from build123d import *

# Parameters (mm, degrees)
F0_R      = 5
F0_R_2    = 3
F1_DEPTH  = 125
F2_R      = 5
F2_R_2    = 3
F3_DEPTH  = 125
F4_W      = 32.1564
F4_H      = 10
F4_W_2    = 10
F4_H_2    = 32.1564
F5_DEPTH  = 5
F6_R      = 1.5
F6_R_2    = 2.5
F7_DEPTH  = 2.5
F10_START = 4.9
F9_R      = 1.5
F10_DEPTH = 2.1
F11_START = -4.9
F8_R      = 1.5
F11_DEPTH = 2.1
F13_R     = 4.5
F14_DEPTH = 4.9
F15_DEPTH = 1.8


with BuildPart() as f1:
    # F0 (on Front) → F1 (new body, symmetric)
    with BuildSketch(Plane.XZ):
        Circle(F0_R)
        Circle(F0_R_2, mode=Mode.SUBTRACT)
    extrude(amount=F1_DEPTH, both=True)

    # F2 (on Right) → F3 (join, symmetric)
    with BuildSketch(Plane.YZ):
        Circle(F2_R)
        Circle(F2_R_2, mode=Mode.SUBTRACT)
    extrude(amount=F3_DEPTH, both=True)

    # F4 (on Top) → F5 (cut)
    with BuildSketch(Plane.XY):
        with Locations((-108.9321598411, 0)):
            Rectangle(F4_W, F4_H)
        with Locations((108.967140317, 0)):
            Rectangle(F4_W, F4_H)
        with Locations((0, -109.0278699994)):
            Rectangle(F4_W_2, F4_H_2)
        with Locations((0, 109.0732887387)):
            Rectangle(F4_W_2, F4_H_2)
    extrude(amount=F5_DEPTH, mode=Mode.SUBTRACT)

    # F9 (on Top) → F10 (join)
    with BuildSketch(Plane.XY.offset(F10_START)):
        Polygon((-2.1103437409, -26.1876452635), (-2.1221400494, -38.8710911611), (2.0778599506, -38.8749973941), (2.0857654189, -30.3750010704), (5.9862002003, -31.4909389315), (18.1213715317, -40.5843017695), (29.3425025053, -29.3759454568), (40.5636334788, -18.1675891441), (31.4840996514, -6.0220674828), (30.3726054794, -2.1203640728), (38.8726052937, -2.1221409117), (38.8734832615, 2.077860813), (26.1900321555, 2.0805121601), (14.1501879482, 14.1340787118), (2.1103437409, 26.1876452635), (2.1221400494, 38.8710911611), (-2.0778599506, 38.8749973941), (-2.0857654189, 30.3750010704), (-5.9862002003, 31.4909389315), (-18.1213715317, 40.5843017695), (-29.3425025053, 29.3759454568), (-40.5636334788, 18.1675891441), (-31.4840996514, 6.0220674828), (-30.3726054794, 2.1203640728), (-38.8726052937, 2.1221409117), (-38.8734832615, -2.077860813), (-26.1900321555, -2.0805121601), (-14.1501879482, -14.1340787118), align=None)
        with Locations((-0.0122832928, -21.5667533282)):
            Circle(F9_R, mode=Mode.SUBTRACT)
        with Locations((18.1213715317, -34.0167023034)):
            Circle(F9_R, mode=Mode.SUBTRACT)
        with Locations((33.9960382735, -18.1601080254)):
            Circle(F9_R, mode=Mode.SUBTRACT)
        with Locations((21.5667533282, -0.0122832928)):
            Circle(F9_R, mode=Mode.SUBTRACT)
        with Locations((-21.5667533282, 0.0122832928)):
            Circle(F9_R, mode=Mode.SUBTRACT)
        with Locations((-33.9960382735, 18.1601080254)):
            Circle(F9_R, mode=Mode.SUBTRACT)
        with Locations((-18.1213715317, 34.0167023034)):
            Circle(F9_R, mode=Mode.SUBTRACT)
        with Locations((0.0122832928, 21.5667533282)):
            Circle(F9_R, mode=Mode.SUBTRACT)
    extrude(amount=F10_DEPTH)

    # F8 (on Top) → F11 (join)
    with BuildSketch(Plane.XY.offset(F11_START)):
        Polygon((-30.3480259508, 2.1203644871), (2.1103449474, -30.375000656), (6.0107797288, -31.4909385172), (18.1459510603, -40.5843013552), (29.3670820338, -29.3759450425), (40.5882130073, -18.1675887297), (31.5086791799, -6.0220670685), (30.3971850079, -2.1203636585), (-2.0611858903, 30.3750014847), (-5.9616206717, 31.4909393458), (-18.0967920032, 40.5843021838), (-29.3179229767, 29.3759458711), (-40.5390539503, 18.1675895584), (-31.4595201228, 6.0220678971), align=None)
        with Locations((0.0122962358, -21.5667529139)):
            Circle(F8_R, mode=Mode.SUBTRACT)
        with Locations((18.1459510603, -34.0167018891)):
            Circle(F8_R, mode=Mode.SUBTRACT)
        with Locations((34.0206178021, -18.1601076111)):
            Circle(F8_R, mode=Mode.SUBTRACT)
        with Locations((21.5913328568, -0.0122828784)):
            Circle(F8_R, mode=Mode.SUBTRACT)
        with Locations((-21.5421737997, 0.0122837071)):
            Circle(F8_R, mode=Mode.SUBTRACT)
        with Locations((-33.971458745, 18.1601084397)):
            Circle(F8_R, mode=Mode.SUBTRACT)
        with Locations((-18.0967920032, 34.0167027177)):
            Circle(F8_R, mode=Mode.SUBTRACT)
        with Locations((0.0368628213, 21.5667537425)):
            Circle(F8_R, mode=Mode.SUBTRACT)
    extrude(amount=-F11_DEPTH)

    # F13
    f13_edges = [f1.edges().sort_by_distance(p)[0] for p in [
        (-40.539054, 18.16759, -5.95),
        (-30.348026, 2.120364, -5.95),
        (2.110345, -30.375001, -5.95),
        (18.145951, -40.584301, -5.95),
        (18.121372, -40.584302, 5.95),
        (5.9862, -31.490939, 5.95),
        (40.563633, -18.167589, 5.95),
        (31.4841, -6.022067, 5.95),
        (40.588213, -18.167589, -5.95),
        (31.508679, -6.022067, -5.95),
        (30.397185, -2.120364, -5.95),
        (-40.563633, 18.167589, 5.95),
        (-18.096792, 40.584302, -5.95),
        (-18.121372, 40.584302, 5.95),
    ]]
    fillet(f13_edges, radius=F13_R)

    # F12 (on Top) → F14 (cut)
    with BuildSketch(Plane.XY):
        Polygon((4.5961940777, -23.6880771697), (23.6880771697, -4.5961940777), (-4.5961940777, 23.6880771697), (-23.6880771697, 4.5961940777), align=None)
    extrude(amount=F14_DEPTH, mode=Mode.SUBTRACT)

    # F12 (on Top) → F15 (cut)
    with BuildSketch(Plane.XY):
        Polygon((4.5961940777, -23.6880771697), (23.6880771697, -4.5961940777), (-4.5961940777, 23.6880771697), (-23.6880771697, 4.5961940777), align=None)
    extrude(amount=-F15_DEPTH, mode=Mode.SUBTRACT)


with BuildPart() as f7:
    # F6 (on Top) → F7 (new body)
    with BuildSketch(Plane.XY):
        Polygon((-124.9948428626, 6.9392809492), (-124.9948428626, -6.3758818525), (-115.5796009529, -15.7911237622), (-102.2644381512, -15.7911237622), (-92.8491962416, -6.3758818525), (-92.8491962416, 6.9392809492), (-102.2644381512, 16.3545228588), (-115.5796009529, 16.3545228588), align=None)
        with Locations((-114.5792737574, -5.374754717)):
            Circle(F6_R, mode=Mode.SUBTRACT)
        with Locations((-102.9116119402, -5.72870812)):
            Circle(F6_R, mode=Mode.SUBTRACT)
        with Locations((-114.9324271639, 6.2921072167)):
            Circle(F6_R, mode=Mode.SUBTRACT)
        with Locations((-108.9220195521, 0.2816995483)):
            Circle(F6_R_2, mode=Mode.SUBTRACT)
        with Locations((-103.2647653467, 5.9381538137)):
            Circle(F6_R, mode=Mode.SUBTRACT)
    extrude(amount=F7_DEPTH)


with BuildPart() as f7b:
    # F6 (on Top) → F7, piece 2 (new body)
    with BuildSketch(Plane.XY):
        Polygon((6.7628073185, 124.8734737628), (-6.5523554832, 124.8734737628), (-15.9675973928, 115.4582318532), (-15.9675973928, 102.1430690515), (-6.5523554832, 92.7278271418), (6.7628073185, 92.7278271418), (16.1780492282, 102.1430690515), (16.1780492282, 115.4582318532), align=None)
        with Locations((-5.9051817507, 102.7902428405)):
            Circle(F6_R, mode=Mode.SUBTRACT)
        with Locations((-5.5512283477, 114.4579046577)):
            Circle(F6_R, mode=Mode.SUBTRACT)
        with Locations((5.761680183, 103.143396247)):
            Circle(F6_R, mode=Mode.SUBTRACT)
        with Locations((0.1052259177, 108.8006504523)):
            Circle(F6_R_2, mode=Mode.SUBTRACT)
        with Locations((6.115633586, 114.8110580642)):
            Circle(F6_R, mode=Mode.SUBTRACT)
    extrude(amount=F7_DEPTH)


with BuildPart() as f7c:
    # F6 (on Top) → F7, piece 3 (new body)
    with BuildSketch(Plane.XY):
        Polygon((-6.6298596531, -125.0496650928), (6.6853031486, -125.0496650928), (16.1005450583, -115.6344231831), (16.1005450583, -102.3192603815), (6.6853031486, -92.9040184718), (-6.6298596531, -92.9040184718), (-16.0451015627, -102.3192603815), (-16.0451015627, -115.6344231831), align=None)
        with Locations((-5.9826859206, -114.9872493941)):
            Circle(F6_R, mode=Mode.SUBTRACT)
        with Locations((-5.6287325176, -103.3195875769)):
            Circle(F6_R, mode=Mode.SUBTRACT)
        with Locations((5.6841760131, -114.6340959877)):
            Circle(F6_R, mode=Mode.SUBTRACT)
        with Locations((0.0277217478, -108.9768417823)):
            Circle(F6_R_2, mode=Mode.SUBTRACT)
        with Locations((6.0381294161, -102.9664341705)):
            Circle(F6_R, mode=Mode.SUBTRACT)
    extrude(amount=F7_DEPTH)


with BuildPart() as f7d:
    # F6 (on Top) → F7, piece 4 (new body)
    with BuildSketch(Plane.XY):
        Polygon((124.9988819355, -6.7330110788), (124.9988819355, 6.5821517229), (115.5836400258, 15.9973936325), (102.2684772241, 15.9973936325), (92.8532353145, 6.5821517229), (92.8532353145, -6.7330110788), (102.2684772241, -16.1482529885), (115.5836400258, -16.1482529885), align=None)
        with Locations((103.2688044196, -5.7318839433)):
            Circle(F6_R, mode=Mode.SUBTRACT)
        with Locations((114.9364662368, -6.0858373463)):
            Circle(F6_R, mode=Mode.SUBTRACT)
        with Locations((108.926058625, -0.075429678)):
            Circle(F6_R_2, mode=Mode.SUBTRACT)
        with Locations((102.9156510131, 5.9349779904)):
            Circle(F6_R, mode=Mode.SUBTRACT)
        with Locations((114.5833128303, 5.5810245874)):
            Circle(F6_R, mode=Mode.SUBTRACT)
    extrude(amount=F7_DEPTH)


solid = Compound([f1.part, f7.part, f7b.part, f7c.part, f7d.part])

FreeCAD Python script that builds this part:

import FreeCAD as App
import Part
import Sketcher
Q = App.Units.Quantity


def edges_at(feature, points):
    """Names of the edges that pass closest to the given points."""
    edges = feature.Shape.Edges
    near = lambda p: min(range(len(edges)), key=lambda i: edges[i].distToShape(Part.Vertex(*p))[0])
    return sorted({f"Edge{near(p) + 1}" for p in points})


def add_polygon(sketch, points):
    """Adds a closed chain of lines whose ends are joined by coincident constraints."""
    first, n = sketch.GeometryCount, len(points)
    for a, b in zip(points, points[1:] + points[:1]):
        sketch.addGeometry(Part.LineSegment(App.Vector(*a, 0), App.Vector(*b, 0)), False)
    for i in range(n):
        sketch.addConstraint(Sketcher.Constraint("Coincident", first + i, 2, first + (i + 1) % n, 1))

doc = App.newDocument("Part")
body = doc.addObject("PartDesign::Body", "Body")

sketch1 = body.newObject("Sketcher::SketchObject", "Sketch")
sketch1.AttachmentSupport = (doc.getObject("XZ_Plane"), [""])
sketch1.MapMode = "FlatFace"
sketch1.addGeometry([
    Part.Circle(App.Vector(0, 0, 0), App.Vector(0, 0, 1), 5),
    Part.Circle(App.Vector(0, 0, 0), App.Vector(0, 0, 1), 3),
], False)
sketch1.addConstraint([
    Sketcher.Constraint("Coincident", 0, 3, -1, 1),
    Sketcher.Constraint("Coincident", 1, 3, -1, 1),
    Sketcher.Constraint("Diameter", 0, 10.0),
    Sketcher.Constraint("Diameter", 1, 6.0),
])
pad1 = body.newObject("PartDesign::Pad", "Pad")
pad1.Profile = sketch1
pad1.Length = 250
pad1.Midplane = True

sketch2 = body.newObject("Sketcher::SketchObject", "Sketch001")
sketch2.AttachmentSupport = (doc.getObject("YZ_Plane"), [""])
sketch2.MapMode = "FlatFace"
sketch2.addGeometry([
    Part.Circle(App.Vector(0, 0, 0), App.Vector(0, 0, 1), 5),
    Part.Circle(App.Vector(0, 0, 0), App.Vector(0, 0, 1), 3),
], False)
sketch2.addConstraint([
    Sketcher.Constraint("Coincident", 0, 3, -1, 1),
    Sketcher.Constraint("Coincident", 1, 3, -1, 1),
    Sketcher.Constraint("Diameter", 0, 10.0),
    Sketcher.Constraint("Diameter", 1, 6.0),
])
pad2 = body.newObject("PartDesign::Pad", "Pad001")
pad2.Profile = sketch2
pad2.Length = 250
pad2.Midplane = True

sketch3 = body.newObject("Sketcher::SketchObject", "Sketch002")
sketch3.AttachmentSupport = (doc.getObject("XY_Plane"), [""])
sketch3.MapMode = "FlatFace"
add_polygon(sketch3, [(-125, 5), (-125, -5), (-93, -5), (-93, 5)])
add_polygon(sketch3, [(93, 5), (93, -5), (125, -5), (125, 5)])
add_polygon(sketch3, [(-5, -93), (-5, -125), (5, -125), (5, -93)])
add_polygon(sketch3, [(-5, 125), (-5, 93), (5, 93), (5, 125)])
sketch3.addConstraint([
    Sketcher.Constraint("Vertical", 0),
    Sketcher.Constraint("Horizontal", 1),
    Sketcher.Constraint("Vertical", 2),
    Sketcher.Constraint("Horizontal", 3),
    Sketcher.Constraint("Vertical", 4),
    Sketcher.Constraint("Horizontal", 5),
    Sketcher.Constraint("Vertical", 6),
    Sketcher.Constraint("Horizontal", 7),
    Sketcher.Constraint("Vertical", 8),
    Sketcher.Constraint("Horizontal", 9),
    Sketcher.Constraint("Vertical", 10),
    Sketcher.Constraint("Horizontal", 11),
    Sketcher.Constraint("Vertical", 12),
    Sketcher.Constraint("Horizontal", 13),
    Sketcher.Constraint("Vertical", 14),
    Sketcher.Constraint("Horizontal", 15),
    Sketcher.Constraint("Horizontal", 1, 2, 4, 2),
    Sketcher.Constraint("Horizontal", 3, 2, 6, 2),
    Sketcher.Constraint("Vertical", 11, 2, 12, 2),
    Sketcher.Constraint("Vertical", 10, 2, 13, 2),
    Sketcher.Constraint("Equal", 3, 5),
    Sketcher.Constraint("Equal", 15, 0),
    Sketcher.Constraint("Equal", 7, 8),
    Sketcher.Constraint("Equal", 10, 12),
    Sketcher.Constraint("DistanceX", 9, 1, 9, 2, 10.0),
    Sketcher.Constraint("DistanceY", 0, 2, -1, 1, 5.0),
    Sketcher.Constraint("DistanceX", 8, 2, -1, 1, 5.0),
    Sketcher.Constraint("DistanceX", 1, 1, 1, 2, 32.1564),
    Sketcher.Constraint("DistanceX", 1, 2, 4, 2, 185.7429),
    Sketcher.Constraint("DistanceX", 0, 2, -1, 1, 125.01036),
    Sketcher.Constraint("DistanceY", 8, 2, -1, 1, 125.10607),
    Sketcher.Constraint("DistanceY", -1, 1, 12, 2, 92.995089),
])
pocket1 = body.newObject("PartDesign::Pocket", "Pocket")
pocket1.Profile = sketch3
pocket1.Length = 5
pocket1.Reversed = True

sketch4 = body.newObject("Sketcher::SketchObject", "Sketch003")
sketch4.AttachmentSupport = (doc.getObject("XY_Plane"), [""])
sketch4.MapMode = "FlatFace"
sketch4.AttachmentOffset = App.Placement(App.Vector(0, 0, 4.9), App.Rotation())
add_polygon(sketch4, [(-2.1, -26.2), (-2.1, -38.9), (2.1, -38.9), (2.1, -30.4), (6, -31.5), (18.1, -40.6), (29.3, -29.4), (40.6, -18.2), (31.5, -6), (30.4, -2.1), (38.9, -2.1), (38.9, 2.1), (26.2, 2.1), (2.1, 26.2), (2.1, 38.9), (-2.1, 38.9), (-2.1, 30.4), (-6, 31.5), (-18.1, 40.6), (-29.3, 29.4), (-40.6, 18.2), (-31.5, 6), (-30.4, 2.1), (-38.9, 2.1), (-38.9, -2.1), (-26.2, -2.1)])
sketch4.addGeometry(Part.Circle(App.Vector(0, -21.6, 0), App.Vector(0, 0, 1), 1.5), False)
sketch4.addGeometry(Part.Circle(App.Vector(18.1, -34, 0), App.Vector(0, 0, 1), 1.5), False)
sketch4.addGeometry(Part.Circle(App.Vector(34, -18.2, 0), App.Vector(0, 0, 1), 1.5), False)
sketch4.addGeometry(Part.Circle(App.Vector(21.6, 0, 0), App.Vector(0, 0, 1), 1.5), False)
sketch4.addGeometry(Part.Circle(App.Vector(-21.6, 0, 0), App.Vector(0, 0, 1), 1.5), False)
sketch4.addGeometry(Part.Circle(App.Vector(-34, 18.2, 0), App.Vector(0, 0, 1), 1.5), False)
sketch4.addGeometry(Part.Circle(App.Vector(-18.1, 34, 0), App.Vector(0, 0, 1), 1.5), False)
sketch4.addGeometry(Part.Circle(App.Vector(0, 21.6, 0), App.Vector(0, 0, 1), 1.5), False)
sketch4.addConstraint([
    Sketcher.Constraint("Equal", 26, 27),
    Sketcher.Constraint("Equal", 27, 28),
    Sketcher.Constraint("Equal", 28, 29),
    Sketcher.Constraint("Equal", 29, 30),
    Sketcher.Constraint("Equal", 30, 31),
    Sketcher.Constraint("Equal", 31, 32),
    Sketcher.Constraint("Equal", 32, 33),
    Sketcher.Constraint("Symmetric", 29, 3, 30, 3, -1, 1),
    Sketcher.Constraint("Symmetric", 28, 3, 31, 3, -1, 1),
    Sketcher.Constraint("Symmetric", 27, 3, 32, 3, -1, 1),
    Sketcher.Constraint("Symmetric", 26, 3, 33, 3, -1, 1),
    Sketcher.Constraint("Symmetric", 0, 2, 13, 2, -1, 1),
    Sketcher.Constraint("Symmetric", 1, 2, 14, 2, -1, 1),
    Sketcher.Constraint("Symmetric", 2, 2, 15, 2, -1, 1),
    Sketcher.Constraint("Symmetric", 3, 2, 16, 2, -1, 1),
    Sketcher.Constraint("Symmetric", 4, 2, 17, 2, -1, 1),
    Sketcher.Constraint("Symmetric", 5, 2, 18, 2, -1, 1),
    Sketcher.Constraint("Symmetric", 6, 2, 19, 2, -1, 1),
    Sketcher.Constraint("Symmetric", 7, 2, 20, 2, -1, 1),
    Sketcher.Constraint("Symmetric", 8, 2, 21, 2, -1, 1),
    Sketcher.Constraint("Symmetric", 9, 2, 22, 2, -1, 1),
    Sketcher.Constraint("Symmetric", 10, 2, 23, 2, -1, 1),
    Sketcher.Constraint("Symmetric", 11, 2, 24, 2, -1, 1),
    Sketcher.Constraint("Symmetric", 12, 2, 25, 2, -1, 1),
    Sketcher.Constraint("Perpendicular", 0, 1),
    Sketcher.Constraint("Perpendicular", 1, 2),
    Sketcher.Constraint("Parallel", 5, 6),
    Sketcher.Constraint("Perpendicular", 9, 10),
    Sketcher.Constraint("Perpendicular", 10, 11),
    Sketcher.Constraint("Perpendicular", 6, 12),
    Sketcher.Constraint("Vertical", 27, 3, 4, 2),
    Sketcher.Constraint("Equal", 5, 6),
    Sketcher.Constraint("Equal", 4, 7),
    Sketcher.Constraint("Equal", 3, 8),
    Sketcher.Constraint("Equal", 2, 9),
    Sketcher.Constraint("Equal", 1, 10),
    Sketcher.Constraint("Equal", 0, 11),
    Sketcher.Constraint("Diameter", 26, 3.0),
    Sketcher.Constraint("Distance", 1, 4.200002),
    Sketcher.Constraint("Distance", 2, 8.5),
    Sketcher.Constraint("DistanceY", 2, 2, -1, 1, 30.375001),
    Sketcher.Constraint("DistanceX", -1, 1, 3, 2, 5.9862),
    Sketcher.Constraint("DistanceY", 4, 2, -1, 1, 40.584302),
    Sketcher.Constraint("DistanceX", -1, 1, 7, 2, 31.4841),
    Sketcher.Constraint("DistanceY", 27, 3, 2, 2, 3.641701),
    Sketcher.Constraint("Distance", 0, 12.683451),
    Sketcher.Constraint("DistanceX", -1, 1, 27, 3, 18.121372),
    Sketcher.Constraint("DistanceX", -1, 1, 28, 3, 33.996038),
    Sketcher.Constraint("DistanceY", 28, 3, -1, 1, 18.160108),
    Sketcher.Constraint("DistanceX", 0, 2, -1, 1, 2.12214),
    Sketcher.Constraint("DistanceY", 0, 2, -1, 1, 38.871091),
    Sketcher.Constraint("DistanceY", 3, 2, -1, 1, 31.490939),
    Sketcher.Constraint("DistanceY", 6, 2, -1, 1, 18.167589),
    Sketcher.Constraint("DistanceY", 9, 2, -1, 1, 2.122141),
    Sketcher.Constraint("DistanceY", 27, 3, 26, 3, 12.449949),
    Sketcher.Constraint("DistanceX", 26, 3, 28, 3, 34.008322),
    Sketcher.Constraint("DistanceY", 26, 3, 29, 3, 21.55447),
    Sketcher.Constraint("DistanceX", 27, 3, 29, 3, 3.445382),
    Sketcher.Constraint("DistanceX", 27, 3, 5, 2, 11.221131),
])
pad3 = body.newObject("PartDesign::Pad", "Pad002")
pad3.Profile = sketch4
pad3.Length = 2.1

sketch5 = body.newObject("Sketcher::SketchObject", "Sketch004")
sketch5.AttachmentSupport = (doc.getObject("XY_Plane"), [""])
sketch5.MapMode = "FlatFace"
sketch5.AttachmentOffset = App.Placement(App.Vector(0, 0, -4.9), App.Rotation())
add_polygon(sketch5, [(-30.3, 2.1), (2.1, -30.4), (6, -31.5), (18.1, -40.6), (29.4, -29.4), (40.6, -18.2), (31.5, -6), (30.4, -2.1), (-2.1, 30.4), (-6, 31.5), (-18.1, 40.6), (-29.3, 29.4), (-40.5, 18.2), (-31.5, 6)])
sketch5.addGeometry(Part.Circle(App.Vector(0, -21.6, 0), App.Vector(0, 0, 1), 1.5), False)
sketch5.addGeometry(Part.Circle(App.Vector(18.1, -34, 0), App.Vector(0, 0, 1), 1.5), False)
sketch5.addGeometry(Part.Circle(App.Vector(34, -18.2, 0), App.Vector(0, 0, 1), 1.5), False)
sketch5.addGeometry(Part.Circle(App.Vector(21.6, 0, 0), App.Vector(0, 0, 1), 1.5), False)
sketch5.addGeometry(Part.Circle(App.Vector(-21.5, 0, 0), App.Vector(0, 0, 1), 1.5), False)
sketch5.addGeometry(Part.Circle(App.Vector(-34, 18.2, 0), App.Vector(0, 0, 1), 1.5), False)
sketch5.addGeometry(Part.Circle(App.Vector(-18.1, 34, 0), App.Vector(0, 0, 1), 1.5), False)
sketch5.addGeometry(Part.Circle(App.Vector(0, 21.6, 0), App.Vector(0, 0, 1), 1.5), False)
sketch5.addConstraint([
    Sketcher.Constraint("Equal", 14, 15),
    Sketcher.Constraint("Equal", 15, 16),
    Sketcher.Constraint("Equal", 16, 17),
    Sketcher.Constraint("Equal", 17, 18),
    Sketcher.Constraint("Equal", 18, 19),
    Sketcher.Constraint("Equal", 19, 20),
    Sketcher.Constraint("Equal", 20, 21),
    Sketcher.Constraint("Perpendicular", 0, 3),
    Sketcher.Constraint("Parallel", 3, 4),
    Sketcher.Constraint("Perpendicular", 4, 7),
    Sketcher.Constraint("Parallel", 1, 8),
    Sketcher.Constraint("Parallel", 2, 9),
    Sketcher.Constraint("Perpendicular", 7, 10),
    Sketcher.Constraint("Parallel", 10, 11),
    Sketcher.Constraint("Parallel", 5, 12),
    Sketcher.Constraint("Parallel", 6, 13),
    Sketcher.Constraint("Vertical", 15, 3, 2, 2),
    Sketcher.Constraint("Vertical", 20, 3, 9, 2),
    Sketcher.Constraint("Equal", 3, 4),
    Sketcher.Constraint("Equal", 2, 5),
    Sketcher.Constraint("Equal", 1, 6),
    Sketcher.Constraint("Equal", 0, 7),
    Sketcher.Constraint("Equal", 6, 8),
    Sketcher.Constraint("Equal", 5, 9),
    Sketcher.Constraint("Equal", 4, 10),
    Sketcher.Constraint("Equal", 10, 11),
    Sketcher.Constraint("Diameter", 14, 3.0),
    Sketcher.Constraint("DistanceY", 0, 2, -1, 1, 30.375001),
    Sketcher.Constraint("DistanceY", -1, 1, 7, 2, 30.375001),
    Sketcher.Constraint("DistanceY", 15, 3, -1, 1, 34.016702),
    Sketcher.Constraint("DistanceY", 2, 2, -1, 1, 40.584301),
    Sketcher.Constraint("DistanceY", 7, 2, 20, 3, 3.641701),
    Sketcher.Constraint("DistanceX", -1, 1, 15, 3, 18.145951),
    Sketcher.Constraint("DistanceX", 19, 3, -1, 1, 33.971459),
    Sketcher.Constraint("DistanceY", -1, 1, 19, 3, 18.160108),
    Sketcher.Constraint("DistanceX", -1, 1, 1, 2, 6.01078),
    Sketcher.Constraint("DistanceY", 1, 2, -1, 1, 31.490939),
    Sketcher.Constraint("DistanceY", 4, 2, -1, 1, 18.167589),
    Sketcher.Constraint("DistanceX", -1, 1, 5, 2, 31.508679),
    Sketcher.Constraint("DistanceX", 8, 2, -1, 1, 5.961621),
    Sketcher.Constraint("DistanceY", 15, 3, 14, 3, 12.449949),
    Sketcher.Constraint("DistanceX", 14, 3, 16, 3, 34.008322),
    Sketcher.Constraint("DistanceY", 14, 3, 17, 3, 21.55447),
    Sketcher.Constraint("DistanceX", 15, 3, 17, 3, 3.445382),
    Sketcher.Constraint("DistanceX", 18, 3, 14, 3, 21.55447),
    Sketcher.Constraint("DistanceY", 16, 3, 18, 3, 18.172391),
    Sketcher.Constraint("DistanceX", 18, 3, 20, 3, 3.445382),
    Sketcher.Constraint("DistanceY", 18, 3, 20, 3, 34.004419),
    Sketcher.Constraint("DistanceY", 21, 3, 20, 3, 12.449949),
    Sketcher.Constraint("DistanceX", 21, 3, 17, 3, 21.55447),
    Sketcher.Constraint("DistanceX", 14, 3, 0, 2, 2.098049),
    Sketcher.Constraint("DistanceX", 15, 3, 3, 2, 11.221131),
])
pad4 = body.newObject("PartDesign::Pad", "Pad003")
pad4.Profile = sketch5
pad4.Length = 2.1
pad4.Reversed = True
doc.recompute()

fillet = body.newObject("PartDesign::Fillet", "Fillet")
fillet.Base = (pad4, edges_at(pad4, [
    (-40.539, 18.168, -5.95),
    (-30.348, 2.12, -5.95),
    (2.11, -30.375, -5.95),
    (18.146, -40.584, -5.95),
    (18.121, -40.584, 5.95),
    (5.986, -31.491, 5.95),
    (40.564, -18.168, 5.95),
    (31.484, -6.022, 5.95),
    (40.588, -18.168, -5.95),
    (31.509, -6.022, -5.95),
    (30.397, -2.12, -5.95),
    (-40.564, 18.168, 5.95),
    (-18.097, 40.584, -5.95),
    (-18.121, 40.584, 5.95),
]))
fillet.Radius = 4.5

sketch6 = body.newObject("Sketcher::SketchObject", "Sketch005")
sketch6.AttachmentSupport = (doc.getObject("XY_Plane"), [""])
sketch6.MapMode = "FlatFace"
add_polygon(sketch6, [(5, -24), (24, -5), (-5, 24), (-24, 5)])
sketch6.addConstraint([
    Sketcher.Constraint("Symmetric", 0, 2, 2, 2, -1, 1),
    Sketcher.Constraint("Symmetric", 1, 2, 3, 2, -1, 1),
    Sketcher.Constraint("Perpendicular", 0, 1),
    Sketcher.Constraint("Angle", 0, Q("45 deg")),
    Sketcher.Constraint("Distance", 0, 27.0),
    Sketcher.Constraint("Distance", 1, 40.0),
])
pocket2 = body.newObject("PartDesign::Pocket", "Pocket001")
pocket2.Profile = sketch6
pocket2.Length = 4.9
pocket2.Reversed = True

sketch7 = body.newObject("Sketcher::SketchObject", "Sketch006")
sketch7.AttachmentSupport = (doc.getObject("XY_Plane"), [""])
sketch7.MapMode = "FlatFace"
add_polygon(sketch7, [(5, -24), (24, -5), (-5, 24), (-24, 5)])
sketch7.addConstraint([
    Sketcher.Constraint("Symmetric", 0, 2, 2, 2, -1, 1),
    Sketcher.Constraint("Symmetric", 1, 2, 3, 2, -1, 1),
    Sketcher.Constraint("Perpendicular", 0, 1),
    Sketcher.Constraint("Angle", 0, Q("45 deg")),
    Sketcher.Constraint("Distance", 0, 27.0),
    Sketcher.Constraint("Distance", 1, 40.0),
])
pocket3 = body.newObject("PartDesign::Pocket", "Pocket002")
pocket3.Profile = sketch7
pocket3.Length = 1.8
body2 = doc.addObject("PartDesign::Body", "Body001")

sketch8 = body2.newObject("Sketcher::SketchObject", "Sketch007")
sketch8.AttachmentSupport = (doc.getObject("XY_Plane001"), [""])
sketch8.MapMode = "FlatFace"
add_polygon(sketch8, [(-125, 6.9), (-125, -6.4), (-115.6, -15.8), (-102.3, -15.8), (-92.8, -6.4), (-92.8, 6.9), (-102.3, 16.4), (-115.6, 16.4)])
sketch8.addGeometry(Part.Circle(App.Vector(-114.6, -5.4, 0), App.Vector(0, 0, 1), 1.5), False)
sketch8.addGeometry(Part.Circle(App.Vector(-108.9, 0.3, 0), App.Vector(0, 0, 1), 2.5), False)
sketch8.addGeometry(Part.Circle(App.Vector(-102.9, -5.7, 0), App.Vector(0, 0, 1), 1.5), False)
sketch8.addGeometry(Part.Circle(App.Vector(-114.9, 6.3, 0), App.Vector(0, 0, 1), 1.5), False)
sketch8.addGeometry(Part.Circle(App.Vector(-103.3, 5.9, 0), App.Vector(0, 0, 1), 1.5), False)
sketch8.addConstraint([
    Sketcher.Constraint("Vertical", 0),
    Sketcher.Constraint("Horizontal", 2),
    Sketcher.Constraint("Vertical", 4),
    Sketcher.Constraint("Horizontal", 6),
    Sketcher.Constraint("Equal", 8, 10),
    Sketcher.Constraint("Equal", 10, 11),
    Sketcher.Constraint("Equal", 11, 12),
    Sketcher.Constraint("Perpendicular", 1, 3),
    Sketcher.Constraint("Perpendicular", 3, 5),
    Sketcher.Constraint("Perpendicular", 5, 7),
    Sketcher.Constraint("Horizontal", 0, 2, 3, 2),
    Sketcher.Constraint("Horizontal", 4, 2, 7, 2),
    Sketcher.Constraint("Vertical", 2, 2, 5, 2),
    Sketcher.Constraint("Vertical", 1, 2, 6, 2),
    Sketcher.Constraint("Equal", 6, 0),
    Sketcher.Constraint("Diameter", 8, 3.0),
    Sketcher.Constraint("Diameter", 9, 5.0),
    Sketcher.Constraint("DistanceY", -1, 1, 9, 3, 0.2817),
    Sketcher.Constraint("DistanceX", 1, 2, -1, 1, 115.579601),
    Sketcher.Constraint("DistanceX", 2, 1, 2, 2, 13.315163),
    Sketcher.Constraint("DistanceX", 9, 3, -1, 1, 108.92202),
    Sketcher.Constraint("DistanceX", 10, 3, -1, 1, 102.911612),
    Sketcher.Constraint("DistanceY", 10, 3, -1, 1, 5.728708),
    Sketcher.Constraint("DistanceY", 0, 2, -1, 1, 6.375882),
    Sketcher.Constraint("DistanceX", 8, 3, 10, 3, 11.667662),
    Sketcher.Constraint("DistanceY", 8, 3, 11, 3, 11.666862),
    Sketcher.Constraint("DistanceY", 10, 3, 12, 3, 11.666862),
    Sketcher.Constraint("DistanceX", 11, 3, 12, 3, 11.667662),
    Sketcher.Constraint("DistanceX", 8, 3, 12, 3, 11.314508),
    Sketcher.Constraint("DistanceY", 8, 3, 12, 3, 11.312909),
    Sketcher.Constraint("DistanceX", 0, 2, 8, 3, 10.415569),
])
pad5 = body2.newObject("PartDesign::Pad", "Pad004")
pad5.Profile = sketch8
pad5.Length = 2.5
body3 = doc.addObject("PartDesign::Body", "Body002")

sketch9 = body3.newObject("Sketcher::SketchObject", "Sketch008")
sketch9.AttachmentSupport = (doc.getObject("XY_Plane002"), [""])
sketch9.MapMode = "FlatFace"
add_polygon(sketch9, [(6.8, 124.9), (-6.6, 124.9), (-16, 115.5), (-16, 102.1), (-6.6, 92.7), (6.8, 92.7), (16.2, 102.1), (16.2, 115.5)])
sketch9.addGeometry(Part.Circle(App.Vector(-5.9, 102.8, 0), App.Vector(0, 0, 1), 1.5), False)
sketch9.addGeometry(Part.Circle(App.Vector(5.8, 103.1, 0), App.Vector(0, 0, 1), 1.5), False)
sketch9.addGeometry(Part.Circle(App.Vector(0.1, 108.8, 0), App.Vector(0, 0, 1), 2.5), False)
sketch9.addGeometry(Part.Circle(App.Vector(-5.6, 114.5, 0), App.Vector(0, 0, 1), 1.5), False)
sketch9.addGeometry(Part.Circle(App.Vector(6.1, 114.8, 0), App.Vector(0, 0, 1), 1.5), False)
sketch9.addConstraint([
    Sketcher.Constraint("Horizontal", 0),
    Sketcher.Constraint("Vertical", 2),
    Sketcher.Constraint("Horizontal", 4),
    Sketcher.Constraint("Vertical", 6),
    Sketcher.Constraint("Equal", 8, 9),
    Sketcher.Constraint("Equal", 9, 11),
    Sketcher.Constraint("Equal", 11, 12),
    Sketcher.Constraint("Perpendicular", 1, 3),
    Sketcher.Constraint("Perpendicular", 3, 5),
    Sketcher.Constraint("Perpendicular", 5, 7),
    Sketcher.Constraint("Horizontal", 2, 2, 5, 2),
    Sketcher.Constraint("Horizontal", 1, 2, 6, 2),
    Sketcher.Constraint("Vertical", 0, 2, 3, 2),
    Sketcher.Constraint("Vertical", 4, 2, 7, 2),
    Sketcher.Constraint("Equal", 4, 2),
    Sketcher.Constraint("Diameter", 8, 3.0),
    Sketcher.Constraint("Diameter", 10, 5.0),
    Sketcher.Constraint("DistanceX", 0, 2, 0, 1, 13.315163),
    Sketcher.Constraint("DistanceX", 8, 3, -1, 1, 5.905182),
    Sketcher.Constraint("DistanceX", -1, 1, 9, 3, 5.76168),
    Sketcher.Constraint("DistanceY", -1, 1, 10, 3, 108.80065),
    Sketcher.Constraint("DistanceX", 11, 3, -1, 1, 5.551228),
    Sketcher.Constraint("DistanceY", -1, 1, 12, 3, 114.811058),
    Sketcher.Constraint("DistanceY", -1, 1, 1, 2, 115.458232),
    Sketcher.Constraint("DistanceX", -1, 1, 5, 2, 16.178049),
    Sketcher.Constraint("DistanceY", 8, 3, 11, 3, 11.667662),
    Sketcher.Constraint("DistanceY", 9, 3, 11, 3, 11.314508),
    Sketcher.Constraint("DistanceX", 11, 3, 12, 3, 11.666862),
    Sketcher.Constraint("DistanceY", 9, 3, 12, 3, 11.667662),
    Sketcher.Constraint("DistanceY", 11, 3, 0, 2, 10.415569),
    Sketcher.Constraint("DistanceX", 0, 2, 10, 3, 6.657581),
])
pad6 = body3.newObject("PartDesign::Pad", "Pad005")
pad6.Profile = sketch9
pad6.Length = 2.5
body4 = doc.addObject("PartDesign::Body", "Body003")

sketch10 = body4.newObject("Sketcher::SketchObject", "Sketch009")
sketch10.AttachmentSupport = (doc.getObject("XY_Plane003"), [""])
sketch10.MapMode = "FlatFace"
add_polygon(sketch10, [(-6.6, -125), (6.7, -125), (16.1, -115.6), (16.1, -102.3), (6.7, -92.9), (-6.6, -92.9), (-16, -102.3), (-16, -115.6)])
sketch10.addGeometry(Part.Circle(App.Vector(-6, -115, 0), App.Vector(0, 0, 1), 1.5), False)
sketch10.addGeometry(Part.Circle(App.Vector(5.7, -114.6, 0), App.Vector(0, 0, 1), 1.5), False)
sketch10.addGeometry(Part.Circle(App.Vector(0, -109, 0), App.Vector(0, 0, 1), 2.5), False)
sketch10.addGeometry(Part.Circle(App.Vector(-5.6, -103.3, 0), App.Vector(0, 0, 1), 1.5), False)
sketch10.addGeometry(Part.Circle(App.Vector(6, -103, 0), App.Vector(0, 0, 1), 1.5), False)
sketch10.addConstraint([
    Sketcher.Constraint("Horizontal", 0),
    Sketcher.Constraint("Vertical", 2),
    Sketcher.Constraint("Horizontal", 4),
    Sketcher.Constraint("Vertical", 6),
    Sketcher.Constraint("Equal", 8, 9),
    Sketcher.Constraint("Equal", 9, 11),
    Sketcher.Constraint("Equal", 11, 12),
    Sketcher.Constraint("Perpendicular", 1, 3),
    Sketcher.Constraint("Perpendicular", 3, 5),
    Sketcher.Constraint("Perpendicular", 5, 7),
    Sketcher.Constraint("Horizontal", 2, 2, 5, 2),
    Sketcher.Constraint("Horizontal", 1, 2, 6, 2),
    Sketcher.Constraint("Vertical", 0, 2, 3, 2),
    Sketcher.Constraint("Vertical", 4, 2, 7, 2),
    Sketcher.Constraint("Equal", 4, 2),
    Sketcher.Constraint("Diameter", 8, 3.0),
    Sketcher.Constraint("Diameter", 10, 5.0),
    Sketcher.Constraint("DistanceX", 5, 2, -1, 1, 16.045102),
    Sketcher.Constraint("DistanceX", 0, 1, 0, 2, 13.315163),
    Sketcher.Constraint("DistanceY", 8, 3, -1, 1, 114.987249),
    Sketcher.Constraint("DistanceX", -1, 1, 10, 3, 0.027722),
    Sketcher.Constraint("DistanceY", 10, 3, -1, 1, 108.976842),
    Sketcher.Constraint("DistanceX", -1, 1, 12, 3, 6.038129),
    Sketcher.Constraint("DistanceY", 2, 2, -1, 1, 102.31926),
    Sketcher.Constraint("DistanceY", 3, 2, -1, 1, 92.904018),
    Sketcher.Constraint("DistanceX", 8, 3, 9, 3, 11.666862),
    Sketcher.Constraint("DistanceY", 8, 3, 11, 3, 11.667662),
    Sketcher.Constraint("DistanceX", 11, 3, 9, 3, 11.312909),
    Sketcher.Constraint("DistanceY", 9, 3, 11, 3, 11.314508),
    Sketcher.Constraint("DistanceX", 11, 3, 12, 3, 11.666862),
    Sketcher.Constraint("DistanceY", 9, 3, 12, 3, 11.667662),
])
pad7 = body4.newObject("PartDesign::Pad", "Pad006")
pad7.Profile = sketch10
pad7.Length = 2.5
body5 = doc.addObject("PartDesign::Body", "Body004")

sketch11 = body5.newObject("Sketcher::SketchObject", "Sketch010")
sketch11.AttachmentSupport = (doc.getObject("XY_Plane004"), [""])
sketch11.MapMode = "FlatFace"
add_polygon(sketch11, [(125, -6.7), (125, 6.6), (115.6, 16), (102.3, 16), (92.9, 6.6), (92.9, -6.7), (102.3, -16.1), (115.6, -16.1)])
sketch11.addGeometry(Part.Circle(App.Vector(103.3, -5.7, 0), App.Vector(0, 0, 1), 1.5), False)
sketch11.addGeometry(Part.Circle(App.Vector(114.9, -6.1, 0), App.Vector(0, 0, 1), 1.5), False)
sketch11.addGeometry(Part.Circle(App.Vector(108.9, -0.1, 0), App.Vector(0, 0, 1), 2.5), False)
sketch11.addGeometry(Part.Circle(App.Vector(102.9, 5.9, 0), App.Vector(0, 0, 1), 1.5), False)
sketch11.addGeometry(Part.Circle(App.Vector(114.6, 5.6, 0), App.Vector(0, 0, 1), 1.5), False)
sketch11.addConstraint([
    Sketcher.Constraint("Vertical", 0),
    Sketcher.Constraint("Horizontal", 2),
    Sketcher.Constraint("Vertical", 4),
    Sketcher.Constraint("Horizontal", 6),
    Sketcher.Constraint("Equal", 8, 9),
    Sketcher.Constraint("Equal", 9, 11),
    Sketcher.Constraint("Equal", 11, 12),
    Sketcher.Constraint("Perpendicular", 1, 3),
    Sketcher.Constraint("Perpendicular", 3, 5),
    Sketcher.Constraint("Perpendicular", 5, 7),
    Sketcher.Constraint("Horizontal", 0, 2, 3, 2),
    Sketcher.Constraint("Horizontal", 4, 2, 7, 2),
    Sketcher.Constraint("Vertical", 2, 2, 5, 2),
    Sketcher.Constraint("Vertical", 1, 2, 6, 2),
    Sketcher.Constraint("Equal", 6, 0),
    Sketcher.Constraint("Diameter", 8, 3.0),
    Sketcher.Constraint("Diameter", 10, 5.0),
    Sketcher.Constraint("DistanceX", 2, 2, 2, 1, 13.315163),
    Sketcher.Constraint("DistanceX", -1, 1, 10, 3, 108.926059),
    Sketcher.Constraint("DistanceY", 10, 3, -1, 1, 0.07543),
    Sketcher.Constraint("DistanceX", -1, 1, 11, 3, 102.915651),
    Sketcher.Constraint("DistanceX", -1, 1, 0, 2, 124.998882),
    Sketcher.Constraint("DistanceY", -1, 1, 0, 2, 6.582152),
    Sketcher.Constraint("DistanceX", -1, 1, 1, 2, 115.58364),
    Sketcher.Constraint("DistanceX", 8, 3, 9, 3, 11.667662),
    Sketcher.Constraint("DistanceY", 8, 3, 11, 3, 11.666862),
    Sketcher.Constraint("DistanceY", 9, 3, 12, 3, 11.666862),
    Sketcher.Constraint("DistanceX", 11, 3, 12, 3, 11.667662),
    Sketcher.Constraint("DistanceX", 8, 3, 12, 3, 11.314508),
    Sketcher.Constraint("DistanceY", 8, 3, 12, 3, 11.312909),
    Sketcher.Constraint("DistanceY", 9, 3, 0, 2, 12.667989),
])
pad8 = body5.newObject("PartDesign::Pad", "Pad007")
pad8.Profile = sketch11
pad8.Length = 2.5

doc.recompute()
